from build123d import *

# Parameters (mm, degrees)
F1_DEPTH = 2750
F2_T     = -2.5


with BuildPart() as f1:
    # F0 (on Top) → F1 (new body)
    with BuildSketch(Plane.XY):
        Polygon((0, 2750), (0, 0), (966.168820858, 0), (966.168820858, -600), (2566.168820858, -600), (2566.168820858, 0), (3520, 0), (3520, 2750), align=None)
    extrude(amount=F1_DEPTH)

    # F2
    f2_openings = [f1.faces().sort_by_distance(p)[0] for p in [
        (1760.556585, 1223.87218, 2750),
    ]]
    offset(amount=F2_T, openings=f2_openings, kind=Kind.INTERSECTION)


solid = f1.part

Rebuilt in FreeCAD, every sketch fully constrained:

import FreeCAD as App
import Part
import Sketcher
Q = App.Units.Quantity


def faces_at(feature, points):
    """Names of the faces that lie closest to the given points."""
    faces = feature.Shape.Faces
    near = lambda p: min(range(len(faces)), key=lambda i: faces[i].distToShape(Part.Vertex(*p))[0])
    return sorted({f"Face{near(p) + 1}" for p in points})


def add_polygon(sketch, points):
    """Adds a closed chain of lines whose ends are joined by coincident constraints."""
    first, n = sketch.GeometryCount, len(points)
    for a, b in zip(points, points[1:] + points[:1]):
        sketch.addGeometry(Part.LineSegment(App.Vector(*a, 0), App.Vector(*b, 0)), False)
    for i in range(n):
        sketch.addConstraint(Sketcher.Constraint("Coincident", first + i, 2, first + (i + 1) % n, 1))

doc = App.newDocument("Part")
params = doc.addObject("Spreadsheet::Sheet", "Params")
for row, (alias, value) in enumerate([
    ("sketch1_width", "1600 mm"),
    ("sketch1_width2", "3520 mm"),
    ("sketch1_height", "2750 mm"),
    ("sketch1_height2", "600 mm"),
    ("pad1_length", "2750 mm"),
    ("thickness_wall", "2.5 mm"),
], start=1):
    params.set(f"A{row}", alias)
    params.set(f"B{row}", "=" + value)
    params.setAlias(f"B{row}", alias)

body = doc.addObject("PartDesign::Body", "Body")

# Sketch on XY plane
sketch1 = body.newObject("Sketcher::SketchObject", "Sketch")
sketch1.AttachmentSupport = (doc.getObject("XY_Plane"), [""])
sketch1.MapMode = "FlatFace"
add_polygon(sketch1, [(0, 2750), (0, 0), (966.168821, 0), (966.168821, -600), (2566.168821, -600), (2566.168821, 0), (3520, 0), (3520, 2750)])  # lines 0-7
sketch1.addConstraint(Sketcher.Constraint("Vertical", 0))
sketch1.addConstraint(Sketcher.Constraint("Horizontal", 1))
sketch1.addConstraint(Sketcher.Constraint("Vertical", 2))
sketch1.addConstraint(Sketcher.Constraint("Horizontal", 3))
sketch1.addConstraint(Sketcher.Constraint("Vertical", 4))
sketch1.addConstraint(Sketcher.Constraint("Horizontal", 5))
sketch1.addConstraint(Sketcher.Constraint("Vertical", 6))
sketch1.addConstraint(Sketcher.Constraint("Horizontal", 7))
sketch1.addConstraint(Sketcher.Constraint("Coincident", 0, 2, -1, 1))
sketch1.addConstraint(Sketcher.Constraint("PointOnObject", 4, 2, -1))
sketch1.addConstraint(Sketcher.Constraint("DistanceX", 3, 1, 3, 2, Q("1600 mm")))
sketch1.addConstraint(Sketcher.Constraint("DistanceX", 7, 2, 7, 1, Q("3520 mm")))
sketch1.addConstraint(Sketcher.Constraint("DistanceY", 0, 2, 0, 1, Q("2750 mm")))
sketch1.addConstraint(Sketcher.Constraint("DistanceY", 2, 2, 2, 1, Q("600 mm")))
sketch1.addConstraint(Sketcher.Constraint("DistanceX", 1, 1, 1, 2, Q("966.168821 mm")))
sketch1.setExpression("Constraints[18]", "Params.sketch1_width")
sketch1.setExpression("Constraints[19]", "Params.sketch1_width2")
sketch1.setExpression("Constraints[20]", "Params.sketch1_height")
sketch1.setExpression("Constraints[21]", "Params.sketch1_height2")
pad1 = body.newObject("PartDesign::Pad", "Pad")
pad1.Profile = sketch1
pad1.setExpression("Length", "Params.pad1_length")
doc.recompute()

thickness = body.newObject("PartDesign::Thickness", "Thickness")
thickness.Base = (pad1, faces_at(pad1, [(1760, 1075, 2750)]))
thickness.setExpression("Value", "Params.thickness_wall")
thickness.Reversed = True
thickness.Join = "Intersection"

doc.recompute()
